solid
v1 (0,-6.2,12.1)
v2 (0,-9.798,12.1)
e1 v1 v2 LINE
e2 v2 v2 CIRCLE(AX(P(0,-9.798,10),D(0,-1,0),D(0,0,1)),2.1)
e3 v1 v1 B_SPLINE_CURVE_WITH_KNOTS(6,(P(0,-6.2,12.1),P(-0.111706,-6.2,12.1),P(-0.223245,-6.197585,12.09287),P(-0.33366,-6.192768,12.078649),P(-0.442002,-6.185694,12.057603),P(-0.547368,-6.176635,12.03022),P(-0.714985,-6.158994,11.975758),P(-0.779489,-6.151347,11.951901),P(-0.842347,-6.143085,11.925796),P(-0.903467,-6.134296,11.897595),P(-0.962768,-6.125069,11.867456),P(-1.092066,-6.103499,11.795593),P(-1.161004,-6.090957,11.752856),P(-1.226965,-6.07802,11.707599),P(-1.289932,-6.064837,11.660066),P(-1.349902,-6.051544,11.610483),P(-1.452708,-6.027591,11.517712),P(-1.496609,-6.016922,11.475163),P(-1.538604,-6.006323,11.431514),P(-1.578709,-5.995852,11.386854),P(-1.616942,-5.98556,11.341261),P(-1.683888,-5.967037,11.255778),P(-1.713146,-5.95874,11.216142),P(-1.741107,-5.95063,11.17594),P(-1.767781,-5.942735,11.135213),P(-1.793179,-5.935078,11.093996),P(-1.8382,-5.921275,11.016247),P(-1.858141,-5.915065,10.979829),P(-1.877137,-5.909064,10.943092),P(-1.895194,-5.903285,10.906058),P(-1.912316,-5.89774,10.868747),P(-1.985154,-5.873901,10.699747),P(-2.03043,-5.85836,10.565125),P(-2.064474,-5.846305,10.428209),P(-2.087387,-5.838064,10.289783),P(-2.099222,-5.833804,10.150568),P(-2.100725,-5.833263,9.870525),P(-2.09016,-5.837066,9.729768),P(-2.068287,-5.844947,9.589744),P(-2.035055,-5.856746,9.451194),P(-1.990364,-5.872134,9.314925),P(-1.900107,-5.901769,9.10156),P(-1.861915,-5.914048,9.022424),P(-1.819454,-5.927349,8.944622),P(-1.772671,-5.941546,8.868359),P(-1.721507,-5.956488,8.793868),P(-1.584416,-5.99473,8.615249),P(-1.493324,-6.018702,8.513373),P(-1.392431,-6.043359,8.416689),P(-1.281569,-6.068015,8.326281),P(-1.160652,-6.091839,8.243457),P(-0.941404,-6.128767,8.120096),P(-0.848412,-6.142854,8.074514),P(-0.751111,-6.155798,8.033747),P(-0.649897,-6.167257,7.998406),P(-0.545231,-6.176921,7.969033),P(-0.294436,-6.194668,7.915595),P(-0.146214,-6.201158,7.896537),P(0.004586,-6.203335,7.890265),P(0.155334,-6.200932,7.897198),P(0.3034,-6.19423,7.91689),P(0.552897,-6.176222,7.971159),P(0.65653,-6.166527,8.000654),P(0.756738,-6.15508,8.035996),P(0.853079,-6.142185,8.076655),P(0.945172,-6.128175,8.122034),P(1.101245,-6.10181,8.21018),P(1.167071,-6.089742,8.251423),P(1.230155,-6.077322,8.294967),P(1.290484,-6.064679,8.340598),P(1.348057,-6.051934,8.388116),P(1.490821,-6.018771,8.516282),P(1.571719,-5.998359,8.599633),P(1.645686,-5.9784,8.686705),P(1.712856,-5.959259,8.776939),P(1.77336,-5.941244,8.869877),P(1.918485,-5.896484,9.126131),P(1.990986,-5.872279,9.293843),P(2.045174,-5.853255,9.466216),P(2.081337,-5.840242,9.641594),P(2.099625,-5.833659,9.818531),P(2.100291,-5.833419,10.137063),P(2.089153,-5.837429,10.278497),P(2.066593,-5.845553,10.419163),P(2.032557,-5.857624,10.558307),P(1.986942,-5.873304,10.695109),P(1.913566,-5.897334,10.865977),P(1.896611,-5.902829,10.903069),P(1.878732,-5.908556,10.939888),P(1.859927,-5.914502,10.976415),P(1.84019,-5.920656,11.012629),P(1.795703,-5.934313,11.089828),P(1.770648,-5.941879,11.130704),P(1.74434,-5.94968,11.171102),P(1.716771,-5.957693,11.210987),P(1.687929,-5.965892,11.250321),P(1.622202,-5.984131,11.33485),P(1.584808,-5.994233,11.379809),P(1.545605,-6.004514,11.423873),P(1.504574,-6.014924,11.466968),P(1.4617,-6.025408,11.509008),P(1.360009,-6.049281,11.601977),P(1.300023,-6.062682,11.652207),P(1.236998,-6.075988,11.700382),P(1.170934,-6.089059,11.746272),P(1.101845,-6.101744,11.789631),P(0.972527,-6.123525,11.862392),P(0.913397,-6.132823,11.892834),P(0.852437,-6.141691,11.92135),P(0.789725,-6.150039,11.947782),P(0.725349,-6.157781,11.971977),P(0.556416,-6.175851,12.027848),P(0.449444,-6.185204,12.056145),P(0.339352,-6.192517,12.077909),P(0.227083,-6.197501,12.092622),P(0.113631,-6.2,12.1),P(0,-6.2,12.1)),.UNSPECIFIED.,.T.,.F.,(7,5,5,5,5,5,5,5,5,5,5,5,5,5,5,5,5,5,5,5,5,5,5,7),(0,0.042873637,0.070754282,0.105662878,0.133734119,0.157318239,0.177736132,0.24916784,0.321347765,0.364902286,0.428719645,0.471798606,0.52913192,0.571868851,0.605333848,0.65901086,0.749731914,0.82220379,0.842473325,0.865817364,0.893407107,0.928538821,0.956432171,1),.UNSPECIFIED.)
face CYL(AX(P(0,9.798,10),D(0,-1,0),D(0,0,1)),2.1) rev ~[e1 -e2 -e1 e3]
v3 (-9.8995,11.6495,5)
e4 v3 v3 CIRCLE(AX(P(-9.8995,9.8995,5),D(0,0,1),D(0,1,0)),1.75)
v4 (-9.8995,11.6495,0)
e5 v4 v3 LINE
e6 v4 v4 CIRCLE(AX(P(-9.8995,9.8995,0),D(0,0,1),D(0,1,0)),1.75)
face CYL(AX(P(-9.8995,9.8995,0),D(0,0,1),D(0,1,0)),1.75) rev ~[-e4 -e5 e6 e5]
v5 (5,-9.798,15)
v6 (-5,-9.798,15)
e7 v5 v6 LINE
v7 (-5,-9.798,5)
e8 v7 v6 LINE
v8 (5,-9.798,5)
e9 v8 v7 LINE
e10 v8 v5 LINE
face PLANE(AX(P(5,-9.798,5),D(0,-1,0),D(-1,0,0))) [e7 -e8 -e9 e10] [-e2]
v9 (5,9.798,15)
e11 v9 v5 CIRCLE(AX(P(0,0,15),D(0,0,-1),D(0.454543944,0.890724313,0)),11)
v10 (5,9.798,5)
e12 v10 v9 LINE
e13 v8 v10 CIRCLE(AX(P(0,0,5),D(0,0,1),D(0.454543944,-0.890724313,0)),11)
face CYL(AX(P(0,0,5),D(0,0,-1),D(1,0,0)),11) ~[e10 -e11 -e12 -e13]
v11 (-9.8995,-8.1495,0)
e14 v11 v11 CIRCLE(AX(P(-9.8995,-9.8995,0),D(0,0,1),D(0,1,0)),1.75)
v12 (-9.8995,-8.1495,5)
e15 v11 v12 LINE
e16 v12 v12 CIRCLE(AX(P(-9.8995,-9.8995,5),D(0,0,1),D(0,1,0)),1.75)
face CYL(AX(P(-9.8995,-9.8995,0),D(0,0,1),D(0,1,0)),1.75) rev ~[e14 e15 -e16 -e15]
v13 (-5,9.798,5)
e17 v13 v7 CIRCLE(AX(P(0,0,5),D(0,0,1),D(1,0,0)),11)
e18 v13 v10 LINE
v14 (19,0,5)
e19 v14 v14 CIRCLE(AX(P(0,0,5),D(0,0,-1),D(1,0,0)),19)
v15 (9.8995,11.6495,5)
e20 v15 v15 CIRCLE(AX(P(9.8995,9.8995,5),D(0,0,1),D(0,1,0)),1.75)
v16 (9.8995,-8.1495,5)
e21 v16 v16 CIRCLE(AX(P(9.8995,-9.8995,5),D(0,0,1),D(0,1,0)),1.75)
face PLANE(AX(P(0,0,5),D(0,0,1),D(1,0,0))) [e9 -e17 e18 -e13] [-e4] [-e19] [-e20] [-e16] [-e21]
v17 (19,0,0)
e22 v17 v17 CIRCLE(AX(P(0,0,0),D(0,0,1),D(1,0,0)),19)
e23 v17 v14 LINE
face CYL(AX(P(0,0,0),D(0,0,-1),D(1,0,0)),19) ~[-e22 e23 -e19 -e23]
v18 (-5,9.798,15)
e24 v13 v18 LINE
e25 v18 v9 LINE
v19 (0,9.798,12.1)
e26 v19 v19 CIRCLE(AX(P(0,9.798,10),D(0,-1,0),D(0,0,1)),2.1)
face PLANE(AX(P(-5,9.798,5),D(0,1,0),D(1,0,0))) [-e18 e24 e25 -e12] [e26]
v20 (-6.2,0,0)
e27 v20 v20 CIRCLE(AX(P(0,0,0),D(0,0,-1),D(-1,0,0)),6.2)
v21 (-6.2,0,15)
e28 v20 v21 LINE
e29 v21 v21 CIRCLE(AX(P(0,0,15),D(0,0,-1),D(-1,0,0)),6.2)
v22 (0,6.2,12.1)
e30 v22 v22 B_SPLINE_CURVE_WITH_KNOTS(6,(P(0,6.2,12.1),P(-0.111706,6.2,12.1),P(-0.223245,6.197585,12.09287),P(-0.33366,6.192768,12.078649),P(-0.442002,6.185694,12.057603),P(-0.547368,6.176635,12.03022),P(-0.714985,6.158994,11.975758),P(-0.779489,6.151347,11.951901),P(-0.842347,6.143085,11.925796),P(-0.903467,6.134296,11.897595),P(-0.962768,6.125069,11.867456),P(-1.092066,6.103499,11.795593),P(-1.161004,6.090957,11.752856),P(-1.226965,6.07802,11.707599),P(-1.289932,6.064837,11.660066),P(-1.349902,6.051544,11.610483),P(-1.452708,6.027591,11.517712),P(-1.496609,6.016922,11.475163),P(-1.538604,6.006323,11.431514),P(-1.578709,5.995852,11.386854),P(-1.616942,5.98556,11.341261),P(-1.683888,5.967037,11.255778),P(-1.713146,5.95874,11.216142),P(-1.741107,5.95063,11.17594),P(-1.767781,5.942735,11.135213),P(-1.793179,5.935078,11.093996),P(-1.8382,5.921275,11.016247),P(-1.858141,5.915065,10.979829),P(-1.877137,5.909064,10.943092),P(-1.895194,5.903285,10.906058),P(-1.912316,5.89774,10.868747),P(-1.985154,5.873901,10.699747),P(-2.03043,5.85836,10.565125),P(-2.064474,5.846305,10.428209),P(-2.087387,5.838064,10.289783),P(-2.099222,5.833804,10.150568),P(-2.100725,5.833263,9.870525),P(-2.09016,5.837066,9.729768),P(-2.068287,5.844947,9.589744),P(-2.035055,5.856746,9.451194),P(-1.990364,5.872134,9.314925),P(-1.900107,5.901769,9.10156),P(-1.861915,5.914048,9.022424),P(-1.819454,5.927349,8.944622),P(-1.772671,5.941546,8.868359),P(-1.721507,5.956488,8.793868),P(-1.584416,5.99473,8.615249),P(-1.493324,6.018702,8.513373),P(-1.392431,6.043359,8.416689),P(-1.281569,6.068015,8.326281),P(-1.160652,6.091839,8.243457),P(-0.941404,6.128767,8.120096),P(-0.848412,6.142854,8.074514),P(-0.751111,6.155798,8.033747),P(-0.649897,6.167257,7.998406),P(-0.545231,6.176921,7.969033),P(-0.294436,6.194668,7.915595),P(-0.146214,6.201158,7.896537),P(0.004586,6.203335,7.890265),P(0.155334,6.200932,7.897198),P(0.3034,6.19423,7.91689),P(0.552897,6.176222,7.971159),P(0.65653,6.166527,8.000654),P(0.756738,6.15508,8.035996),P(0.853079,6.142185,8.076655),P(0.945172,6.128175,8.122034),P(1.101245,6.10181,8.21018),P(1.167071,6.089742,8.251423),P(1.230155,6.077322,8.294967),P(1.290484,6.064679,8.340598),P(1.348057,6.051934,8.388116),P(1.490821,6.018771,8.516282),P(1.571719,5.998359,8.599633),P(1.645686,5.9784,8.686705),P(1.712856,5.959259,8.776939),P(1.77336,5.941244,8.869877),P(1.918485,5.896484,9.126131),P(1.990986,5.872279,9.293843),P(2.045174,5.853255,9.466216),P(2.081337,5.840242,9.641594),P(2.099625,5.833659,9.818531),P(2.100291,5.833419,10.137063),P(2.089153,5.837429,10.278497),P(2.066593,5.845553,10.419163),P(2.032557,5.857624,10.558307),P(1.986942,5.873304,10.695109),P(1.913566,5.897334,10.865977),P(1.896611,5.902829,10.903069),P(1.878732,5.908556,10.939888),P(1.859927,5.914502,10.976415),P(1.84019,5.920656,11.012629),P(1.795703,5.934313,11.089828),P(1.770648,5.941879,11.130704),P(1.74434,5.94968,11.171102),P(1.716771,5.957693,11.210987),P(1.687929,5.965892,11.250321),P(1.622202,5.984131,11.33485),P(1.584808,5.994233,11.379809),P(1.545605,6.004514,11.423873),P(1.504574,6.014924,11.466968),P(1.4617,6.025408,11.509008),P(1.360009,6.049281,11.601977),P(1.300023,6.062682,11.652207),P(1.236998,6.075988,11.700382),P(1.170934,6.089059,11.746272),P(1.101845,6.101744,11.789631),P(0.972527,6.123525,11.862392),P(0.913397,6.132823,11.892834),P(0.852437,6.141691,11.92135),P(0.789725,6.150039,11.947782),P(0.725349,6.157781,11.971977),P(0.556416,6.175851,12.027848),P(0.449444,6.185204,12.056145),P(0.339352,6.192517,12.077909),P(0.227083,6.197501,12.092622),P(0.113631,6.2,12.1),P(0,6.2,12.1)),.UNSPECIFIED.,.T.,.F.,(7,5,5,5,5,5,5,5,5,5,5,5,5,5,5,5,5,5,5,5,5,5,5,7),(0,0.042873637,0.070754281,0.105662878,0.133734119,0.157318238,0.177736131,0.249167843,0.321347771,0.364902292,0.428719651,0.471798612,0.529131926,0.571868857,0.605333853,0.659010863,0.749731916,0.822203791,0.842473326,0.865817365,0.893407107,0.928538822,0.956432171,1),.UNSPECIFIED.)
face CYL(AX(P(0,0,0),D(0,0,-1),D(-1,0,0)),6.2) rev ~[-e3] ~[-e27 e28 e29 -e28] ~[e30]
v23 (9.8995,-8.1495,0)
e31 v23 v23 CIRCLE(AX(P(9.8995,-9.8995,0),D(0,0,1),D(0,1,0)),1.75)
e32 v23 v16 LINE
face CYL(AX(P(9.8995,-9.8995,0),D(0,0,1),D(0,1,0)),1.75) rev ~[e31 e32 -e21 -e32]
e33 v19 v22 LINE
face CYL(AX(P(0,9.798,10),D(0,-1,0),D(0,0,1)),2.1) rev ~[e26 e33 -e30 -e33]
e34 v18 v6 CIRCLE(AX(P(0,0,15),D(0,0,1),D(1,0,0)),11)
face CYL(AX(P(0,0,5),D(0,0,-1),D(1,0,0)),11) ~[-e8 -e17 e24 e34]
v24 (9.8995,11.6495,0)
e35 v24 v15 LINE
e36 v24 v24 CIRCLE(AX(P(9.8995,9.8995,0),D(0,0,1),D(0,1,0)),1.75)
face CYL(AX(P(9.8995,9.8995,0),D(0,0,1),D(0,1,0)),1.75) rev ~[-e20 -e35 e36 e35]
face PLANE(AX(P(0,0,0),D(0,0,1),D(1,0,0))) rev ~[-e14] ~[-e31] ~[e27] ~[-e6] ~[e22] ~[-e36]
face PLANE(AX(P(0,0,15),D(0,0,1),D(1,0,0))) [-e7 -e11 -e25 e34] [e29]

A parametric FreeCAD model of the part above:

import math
import FreeCAD as App
import Part
import Sketcher

doc = App.newDocument("Part")
body = doc.addObject("PartDesign::Body", "Body")

# Sketch on XY plane
sketch1 = body.newObject("Sketcher::SketchObject", "Sketch")
sketch1.AttachmentSupport = (doc.getObject("XY_Plane"), [""])
sketch1.MapMode = "FlatFace"
sketch1.addGeometry(Part.Circle(App.Vector(0, 0, 0), App.Vector(0, 0, 1), 19), False)
sketch1.addConstraint(Sketcher.Constraint("Coincident", 0, 3, -1, 1))
sketch1.addConstraint(Sketcher.Constraint("Diameter", 0, 38.0))
pad1 = body.newObject("PartDesign::Pad", "Pad")
pad1.Profile = sketch1
pad1.Length = 5

# Sketch on XY plane
sketch2 = body.newObject("Sketcher::SketchObject", "Sketch001")
sketch2.AttachmentSupport = (doc.getObject("XY_Plane"), [""])
sketch2.MapMode = "FlatFace"
sketch2.AttachmentOffset = App.Placement(App.Vector(0, 0, 5), App.Rotation())
sketch2.addGeometry(Part.ArcOfCircle(Part.Circle(App.Vector(0, 0, 0), App.Vector(0, 0, 1), 11), math.radians(-63), math.radians(63)), False)
sketch2.addGeometry(Part.LineSegment(App.Vector(5, 10, 0), App.Vector(-5, 10, 0)), False)
sketch2.addGeometry(Part.ArcOfCircle(Part.Circle(App.Vector(0, 0, 0), App.Vector(0, 0, 1), 11), math.radians(117), math.radians(243)), False)
sketch2.addGeometry(Part.LineSegment(App.Vector(-5, -10, 0), App.Vector(5, -10, 0)), False)
sketch2.addConstraint(Sketcher.Constraint("Coincident", 0, 2, 1, 1))
sketch2.addConstraint(Sketcher.Constraint("Coincident", 1, 2, 2, 1))
sketch2.addConstraint(Sketcher.Constraint("Coincident", 2, 2, 3, 1))
sketch2.addConstraint(Sketcher.Constraint("Coincident", 3, 2, 0, 1))
sketch2.addConstraint(Sketcher.Constraint("Horizontal", 1))
sketch2.addConstraint(Sketcher.Constraint("Horizontal", 3))
sketch2.addConstraint(Sketcher.Constraint("Coincident", 0, 3, -1, 1))
sketch2.addConstraint(Sketcher.Constraint("Coincident", 2, 3, -1, 1))
sketch2.addConstraint(Sketcher.Constraint("Equal", 0, 2))
sketch2.addConstraint(Sketcher.Constraint("Vertical", 1, 2, 2, 2))
sketch2.addConstraint(Sketcher.Constraint("Radius", 0, 11.0))
sketch2.addConstraint(Sketcher.Constraint("DistanceX", 1, 2, 1, 1, 10.0))
pad2 = body.newObject("PartDesign::Pad", "Pad001")
pad2.Profile = sketch2
pad2.Length = 10

# Sketch on XY plane
sketch3 = body.newObject("Sketcher::SketchObject", "Sketch002")
sketch3.AttachmentSupport = (doc.getObject("XY_Plane"), [""])
sketch3.MapMode = "FlatFace"
sketch3.addGeometry(Part.Circle(App.Vector(0, 0, 0), App.Vector(0, 0, 1), 6), False)
sketch3.addConstraint(Sketcher.Constraint("Coincident", 0, 3, -1, 1))
sketch3.addConstraint(Sketcher.Constraint("Diameter", 0, 12.4))
pocket1 = body.newObject("PartDesign::Pocket", "Pocket")
pocket1.Profile = sketch3
pocket1.Length = 30
pocket1.Reversed = True

# Sketch on XY plane
sketch4 = body.newObject("Sketcher::SketchObject", "Sketch003")
sketch4.AttachmentSupport = (doc.getObject("XY_Plane"), [""])
sketch4.MapMode = "FlatFace"
sketch4.addGeometry(Part.Circle(App.Vector(9.9, -9.9, 0), App.Vector(0, 0, 1), 1.8), False)
sketch4.addGeometry(Part.Circle(App.Vector(9.9, 9.9, 0), App.Vector(0, 0, 1), 1.8), False)
sketch4.addGeometry(Part.Circle(App.Vector(-9.9, 9.9, 0), App.Vector(0, 0, 1), 1.8), False)
sketch4.addGeometry(Part.Circle(App.Vector(-9.9, -9.9, 0), App.Vector(0, 0, 1), 1.8), False)
sketch4.addConstraint(Sketcher.Constraint("Equal", 0, 1))
sketch4.addConstraint(Sketcher.Constraint("Equal", 1, 2))
sketch4.addConstraint(Sketcher.Constraint("Equal", 2, 3))
sketch4.addConstraint(Sketcher.Constraint("Symmetric", 0, 3, 2, 3, -1, 1))
sketch4.addConstraint(Sketcher.Constraint("Symmetric", 1, 3, 3, 3, -1, 1))
sketch4.addConstraint(Sketcher.Constraint("Symmetric", 1, 3, 2, 3, -2))
sketch4.addConstraint(Sketcher.Constraint("Diameter", 0, 3.5))
sketch4.addConstraint(Sketcher.Constraint("DistanceY", 0, 3, 1, 3, 19.799))
sketch4.addConstraint(Sketcher.Constraint("DistanceX", 2, 3, 1, 3, 19.799))
doc.recompute()
hole = body.newObject("PartDesign::Hole", "Hole")
hole.Profile = sketch4
hole.ThreadType = "None"
hole.Diameter = 3.5
hole.DepthType = "ThroughAll"
hole.Reversed = True

# Sketch on XZ plane
sketch5 = body.newObject("Sketcher::SketchObject", "Sketch004")
sketch5.AttachmentSupport = (doc.getObject("XZ_Plane"), [""])
sketch5.MapMode = "FlatFace"
sketch5.AttachmentOffset = App.Placement(App.Vector(0, 0, -9.798), App.Rotation())
sketch5.addGeometry(Part.Circle(App.Vector(0, 10, 0), App.Vector(0, 0, 1), 2.1), False)
sketch5.addConstraint(Sketcher.Constraint("PointOnObject", 0, 3, -2))
sketch5.addConstraint(Sketcher.Constraint("Diameter", 0, 4.2))
sketch5.addConstraint(Sketcher.Constraint("DistanceY", -1, 1, 0, 3, 10.0))
doc.recompute()
hole2 = body.newObject("PartDesign::Hole", "Hole001")
hole2.Profile = sketch5
hole2.ThreadType = "None"
hole2.Diameter = 4.2
hole2.DepthType = "ThroughAll"
hole2.Reversed = True

doc.recompute()
